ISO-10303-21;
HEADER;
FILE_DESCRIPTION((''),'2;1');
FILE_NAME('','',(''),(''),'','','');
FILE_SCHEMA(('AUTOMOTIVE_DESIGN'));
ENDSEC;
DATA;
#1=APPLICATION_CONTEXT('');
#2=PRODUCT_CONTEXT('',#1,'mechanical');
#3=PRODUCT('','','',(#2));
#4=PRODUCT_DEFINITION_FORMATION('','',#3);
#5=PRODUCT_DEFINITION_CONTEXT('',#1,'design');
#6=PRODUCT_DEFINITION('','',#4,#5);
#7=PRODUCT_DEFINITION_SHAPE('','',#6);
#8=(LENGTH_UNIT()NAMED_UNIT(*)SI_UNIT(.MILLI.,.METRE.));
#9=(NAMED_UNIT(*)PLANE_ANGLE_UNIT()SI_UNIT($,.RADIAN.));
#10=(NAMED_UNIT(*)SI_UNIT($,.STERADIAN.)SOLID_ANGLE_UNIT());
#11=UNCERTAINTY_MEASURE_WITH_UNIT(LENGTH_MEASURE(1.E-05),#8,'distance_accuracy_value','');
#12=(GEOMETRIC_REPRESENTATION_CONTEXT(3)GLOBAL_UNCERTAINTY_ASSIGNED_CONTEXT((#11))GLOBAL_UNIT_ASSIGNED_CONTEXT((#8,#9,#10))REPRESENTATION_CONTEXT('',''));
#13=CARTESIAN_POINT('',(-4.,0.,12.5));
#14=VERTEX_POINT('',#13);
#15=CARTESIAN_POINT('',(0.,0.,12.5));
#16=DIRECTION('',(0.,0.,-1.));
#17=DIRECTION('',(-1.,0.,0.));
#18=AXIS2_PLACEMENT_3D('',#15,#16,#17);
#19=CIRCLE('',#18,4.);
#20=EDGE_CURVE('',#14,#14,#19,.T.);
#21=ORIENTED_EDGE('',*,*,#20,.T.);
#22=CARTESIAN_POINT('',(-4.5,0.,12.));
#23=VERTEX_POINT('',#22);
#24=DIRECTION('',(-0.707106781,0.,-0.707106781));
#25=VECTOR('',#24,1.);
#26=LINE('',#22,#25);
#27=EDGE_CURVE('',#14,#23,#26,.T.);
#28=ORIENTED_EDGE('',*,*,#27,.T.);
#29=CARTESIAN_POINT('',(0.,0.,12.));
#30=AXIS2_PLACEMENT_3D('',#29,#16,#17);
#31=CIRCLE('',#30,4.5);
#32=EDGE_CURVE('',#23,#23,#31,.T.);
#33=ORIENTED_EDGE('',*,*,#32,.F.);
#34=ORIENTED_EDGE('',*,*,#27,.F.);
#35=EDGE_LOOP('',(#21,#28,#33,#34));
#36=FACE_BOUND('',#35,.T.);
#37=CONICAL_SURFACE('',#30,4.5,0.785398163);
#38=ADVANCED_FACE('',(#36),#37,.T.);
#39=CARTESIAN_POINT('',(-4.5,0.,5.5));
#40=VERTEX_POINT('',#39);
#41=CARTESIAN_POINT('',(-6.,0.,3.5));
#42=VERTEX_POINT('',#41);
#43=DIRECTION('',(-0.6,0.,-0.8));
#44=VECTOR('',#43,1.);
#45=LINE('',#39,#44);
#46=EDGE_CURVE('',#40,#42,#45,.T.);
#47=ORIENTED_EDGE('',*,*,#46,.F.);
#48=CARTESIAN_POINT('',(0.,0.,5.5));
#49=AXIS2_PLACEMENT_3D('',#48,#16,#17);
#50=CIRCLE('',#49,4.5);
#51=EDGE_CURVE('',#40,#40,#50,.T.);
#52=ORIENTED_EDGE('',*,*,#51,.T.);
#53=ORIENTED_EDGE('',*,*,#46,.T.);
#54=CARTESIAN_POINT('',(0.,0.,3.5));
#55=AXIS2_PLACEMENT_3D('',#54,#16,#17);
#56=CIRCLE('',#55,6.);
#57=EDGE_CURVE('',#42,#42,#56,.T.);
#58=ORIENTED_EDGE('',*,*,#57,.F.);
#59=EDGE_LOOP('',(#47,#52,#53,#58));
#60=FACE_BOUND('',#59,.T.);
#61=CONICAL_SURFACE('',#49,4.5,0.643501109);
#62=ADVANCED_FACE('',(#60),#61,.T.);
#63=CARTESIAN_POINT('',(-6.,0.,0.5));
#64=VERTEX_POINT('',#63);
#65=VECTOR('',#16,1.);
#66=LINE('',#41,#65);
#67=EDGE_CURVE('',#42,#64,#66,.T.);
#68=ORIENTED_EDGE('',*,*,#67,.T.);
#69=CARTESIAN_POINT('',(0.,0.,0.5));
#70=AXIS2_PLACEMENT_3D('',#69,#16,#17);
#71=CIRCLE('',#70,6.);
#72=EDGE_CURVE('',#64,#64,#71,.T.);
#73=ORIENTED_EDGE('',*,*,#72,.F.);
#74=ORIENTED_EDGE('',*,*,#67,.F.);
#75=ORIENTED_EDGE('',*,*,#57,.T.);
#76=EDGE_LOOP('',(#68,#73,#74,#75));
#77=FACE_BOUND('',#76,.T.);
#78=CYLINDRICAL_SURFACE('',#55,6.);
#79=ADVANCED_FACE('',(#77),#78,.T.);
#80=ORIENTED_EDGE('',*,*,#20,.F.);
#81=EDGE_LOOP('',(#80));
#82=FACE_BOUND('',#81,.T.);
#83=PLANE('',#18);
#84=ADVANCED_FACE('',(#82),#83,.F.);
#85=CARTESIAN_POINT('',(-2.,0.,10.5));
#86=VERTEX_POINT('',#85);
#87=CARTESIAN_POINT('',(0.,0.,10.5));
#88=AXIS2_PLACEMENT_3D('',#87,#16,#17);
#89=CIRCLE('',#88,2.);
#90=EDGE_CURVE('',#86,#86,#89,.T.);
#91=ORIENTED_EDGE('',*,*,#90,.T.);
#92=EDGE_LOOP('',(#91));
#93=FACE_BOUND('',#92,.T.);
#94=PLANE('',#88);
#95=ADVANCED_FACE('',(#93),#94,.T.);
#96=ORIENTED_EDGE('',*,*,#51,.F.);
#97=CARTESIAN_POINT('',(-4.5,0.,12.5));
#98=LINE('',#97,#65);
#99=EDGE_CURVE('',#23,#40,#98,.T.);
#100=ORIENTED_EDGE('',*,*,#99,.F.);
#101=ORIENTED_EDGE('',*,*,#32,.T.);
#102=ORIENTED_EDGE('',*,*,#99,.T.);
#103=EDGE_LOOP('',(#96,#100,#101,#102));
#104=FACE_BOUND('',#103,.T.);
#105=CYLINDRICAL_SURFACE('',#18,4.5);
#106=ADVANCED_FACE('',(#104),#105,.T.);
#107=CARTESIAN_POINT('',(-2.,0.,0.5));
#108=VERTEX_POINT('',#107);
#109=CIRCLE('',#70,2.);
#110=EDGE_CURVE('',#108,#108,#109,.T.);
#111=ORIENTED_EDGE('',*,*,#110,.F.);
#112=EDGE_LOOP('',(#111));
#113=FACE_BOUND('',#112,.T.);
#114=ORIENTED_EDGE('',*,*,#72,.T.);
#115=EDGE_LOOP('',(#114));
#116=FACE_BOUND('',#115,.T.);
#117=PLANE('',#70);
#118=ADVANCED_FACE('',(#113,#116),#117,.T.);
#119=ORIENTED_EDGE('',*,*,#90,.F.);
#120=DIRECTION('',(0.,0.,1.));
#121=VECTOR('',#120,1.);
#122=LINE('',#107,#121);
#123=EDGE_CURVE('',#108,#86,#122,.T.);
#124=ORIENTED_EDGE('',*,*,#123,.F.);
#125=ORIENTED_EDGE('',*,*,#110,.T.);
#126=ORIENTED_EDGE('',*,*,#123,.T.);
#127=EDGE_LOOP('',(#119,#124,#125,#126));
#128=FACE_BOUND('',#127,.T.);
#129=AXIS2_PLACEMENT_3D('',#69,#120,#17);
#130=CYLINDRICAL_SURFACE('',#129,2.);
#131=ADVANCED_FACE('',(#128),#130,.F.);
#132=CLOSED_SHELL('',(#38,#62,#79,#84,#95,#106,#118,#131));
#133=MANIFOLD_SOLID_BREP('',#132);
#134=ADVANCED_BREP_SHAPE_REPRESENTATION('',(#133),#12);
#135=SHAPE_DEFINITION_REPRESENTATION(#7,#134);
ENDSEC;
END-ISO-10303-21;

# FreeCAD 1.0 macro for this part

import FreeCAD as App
import Part
import Sketcher


def edges_at(feature, points):
    """Names of the edges that pass closest to the given points."""
    edges = feature.Shape.Edges
    near = lambda p: min(range(len(edges)), key=lambda i: edges[i].distToShape(Part.Vertex(*p))[0])
    return sorted({f"Edge{near(p) + 1}" for p in points})

doc = App.newDocument("Part")
body = doc.addObject("PartDesign::Body", "Body")

sketch1 = body.newObject("Sketcher::SketchObject", "Sketch")
sketch1.AttachmentSupport = (doc.getObject("XZ_Plane"), [""])
sketch1.MapMode = "FlatFace"
sketch1.addGeometry(Part.LineSegment(App.Vector(-6, 0.5, 0), App.Vector(-2, 0.5, 0)), False)
sketch1.addGeometry(Part.LineSegment(App.Vector(-2, 0.5, 0), App.Vector(-2, 10.5, 0)), False)
sketch1.addGeometry(Part.LineSegment(App.Vector(-2, 10.5, 0), App.Vector(0, 10.5, 0)), False)
sketch1.addGeometry(Part.LineSegment(App.Vector(0, 10.5, 0), App.Vector(0, 12.5, 0)), False)
sketch1.addGeometry(Part.LineSegment(App.Vector(0, 12.5, 0), App.Vector(-4.5, 12.5, 0)), False)
sketch1.addGeometry(Part.LineSegment(App.Vector(-4.5, 12.5, 0), App.Vector(-4.5, 5.5, 0)), False)
sketch1.addGeometry(Part.LineSegment(App.Vector(-4.5, 5.5, 0), App.Vector(-6, 3.5, 0)), False)
sketch1.addGeometry(Part.LineSegment(App.Vector(-6, 3.5, 0), App.Vector(-6, 0.5, 0)), False)
sketch1.addConstraint(Sketcher.Constraint("Coincident", 0, 2, 1, 1))
sketch1.addConstraint(Sketcher.Constraint("Coincident", 1, 2, 2, 1))
sketch1.addConstraint(Sketcher.Constraint("Coincident", 2, 2, 3, 1))
sketch1.addConstraint(Sketcher.Constraint("Coincident", 3, 2, 4, 1))
sketch1.addConstraint(Sketcher.Constraint("Coincident", 4, 2, 5, 1))
sketch1.addConstraint(Sketcher.Constraint("Coincident", 5, 2, 6, 1))
sketch1.addConstraint(Sketcher.Constraint("Coincident", 6, 2, 7, 1))
sketch1.addConstraint(Sketcher.Constraint("Coincident", 7, 2, 0, 1))
sketch1.addConstraint(Sketcher.Constraint("Horizontal", 0))
sketch1.addConstraint(Sketcher.Constraint("Vertical", 1))
sketch1.addConstraint(Sketcher.Constraint("Horizontal", 2))
sketch1.addConstraint(Sketcher.Constraint("Vertical", 3))
sketch1.addConstraint(Sketcher.Constraint("Horizontal", 4))
sketch1.addConstraint(Sketcher.Constraint("Vertical", 5))
sketch1.addConstraint(Sketcher.Constraint("Vertical", 7))
sketch1.addConstraint(Sketcher.Constraint("PointOnObject", 2, 2, -2))
sketch1.addConstraint(Sketcher.Constraint("Equal", 2, 3))
sketch1.addConstraint(Sketcher.Constraint("DistanceX", 0, 1, 0, 2, 4.0))
sketch1.addConstraint(Sketcher.Constraint("DistanceX", 2, 1, 2, 2, 2.0))
sketch1.addConstraint(Sketcher.Constraint("DistanceY", 1, 1, 1, 2, 10.0))
sketch1.addConstraint(Sketcher.Constraint("DistanceY", 5, 2, 5, 1, 7.0))
sketch1.addConstraint(Sketcher.Constraint("DistanceY", 7, 2, 7, 1, 3.0))
sketch1.addConstraint(Sketcher.Constraint("DistanceX", 4, 2, 4, 1, 4.5))
sketch1.addConstraint(Sketcher.Constraint("DistanceY", -1, 1, 0, 2, 0.5))
revolution = body.newObject("PartDesign::Revolution", "Revolution")
revolution.Profile = sketch1
revolution.ReferenceAxis = (sketch1, ["V_Axis"])
revolution.Angle = 360
doc.recompute()

chamfer = body.newObject("PartDesign::Chamfer", "Chamfer")
chamfer.Base = (revolution, edges_at(revolution, [(4.5, 0, 12.5)]))
chamfer.Size = 0.5

doc.recompute()
